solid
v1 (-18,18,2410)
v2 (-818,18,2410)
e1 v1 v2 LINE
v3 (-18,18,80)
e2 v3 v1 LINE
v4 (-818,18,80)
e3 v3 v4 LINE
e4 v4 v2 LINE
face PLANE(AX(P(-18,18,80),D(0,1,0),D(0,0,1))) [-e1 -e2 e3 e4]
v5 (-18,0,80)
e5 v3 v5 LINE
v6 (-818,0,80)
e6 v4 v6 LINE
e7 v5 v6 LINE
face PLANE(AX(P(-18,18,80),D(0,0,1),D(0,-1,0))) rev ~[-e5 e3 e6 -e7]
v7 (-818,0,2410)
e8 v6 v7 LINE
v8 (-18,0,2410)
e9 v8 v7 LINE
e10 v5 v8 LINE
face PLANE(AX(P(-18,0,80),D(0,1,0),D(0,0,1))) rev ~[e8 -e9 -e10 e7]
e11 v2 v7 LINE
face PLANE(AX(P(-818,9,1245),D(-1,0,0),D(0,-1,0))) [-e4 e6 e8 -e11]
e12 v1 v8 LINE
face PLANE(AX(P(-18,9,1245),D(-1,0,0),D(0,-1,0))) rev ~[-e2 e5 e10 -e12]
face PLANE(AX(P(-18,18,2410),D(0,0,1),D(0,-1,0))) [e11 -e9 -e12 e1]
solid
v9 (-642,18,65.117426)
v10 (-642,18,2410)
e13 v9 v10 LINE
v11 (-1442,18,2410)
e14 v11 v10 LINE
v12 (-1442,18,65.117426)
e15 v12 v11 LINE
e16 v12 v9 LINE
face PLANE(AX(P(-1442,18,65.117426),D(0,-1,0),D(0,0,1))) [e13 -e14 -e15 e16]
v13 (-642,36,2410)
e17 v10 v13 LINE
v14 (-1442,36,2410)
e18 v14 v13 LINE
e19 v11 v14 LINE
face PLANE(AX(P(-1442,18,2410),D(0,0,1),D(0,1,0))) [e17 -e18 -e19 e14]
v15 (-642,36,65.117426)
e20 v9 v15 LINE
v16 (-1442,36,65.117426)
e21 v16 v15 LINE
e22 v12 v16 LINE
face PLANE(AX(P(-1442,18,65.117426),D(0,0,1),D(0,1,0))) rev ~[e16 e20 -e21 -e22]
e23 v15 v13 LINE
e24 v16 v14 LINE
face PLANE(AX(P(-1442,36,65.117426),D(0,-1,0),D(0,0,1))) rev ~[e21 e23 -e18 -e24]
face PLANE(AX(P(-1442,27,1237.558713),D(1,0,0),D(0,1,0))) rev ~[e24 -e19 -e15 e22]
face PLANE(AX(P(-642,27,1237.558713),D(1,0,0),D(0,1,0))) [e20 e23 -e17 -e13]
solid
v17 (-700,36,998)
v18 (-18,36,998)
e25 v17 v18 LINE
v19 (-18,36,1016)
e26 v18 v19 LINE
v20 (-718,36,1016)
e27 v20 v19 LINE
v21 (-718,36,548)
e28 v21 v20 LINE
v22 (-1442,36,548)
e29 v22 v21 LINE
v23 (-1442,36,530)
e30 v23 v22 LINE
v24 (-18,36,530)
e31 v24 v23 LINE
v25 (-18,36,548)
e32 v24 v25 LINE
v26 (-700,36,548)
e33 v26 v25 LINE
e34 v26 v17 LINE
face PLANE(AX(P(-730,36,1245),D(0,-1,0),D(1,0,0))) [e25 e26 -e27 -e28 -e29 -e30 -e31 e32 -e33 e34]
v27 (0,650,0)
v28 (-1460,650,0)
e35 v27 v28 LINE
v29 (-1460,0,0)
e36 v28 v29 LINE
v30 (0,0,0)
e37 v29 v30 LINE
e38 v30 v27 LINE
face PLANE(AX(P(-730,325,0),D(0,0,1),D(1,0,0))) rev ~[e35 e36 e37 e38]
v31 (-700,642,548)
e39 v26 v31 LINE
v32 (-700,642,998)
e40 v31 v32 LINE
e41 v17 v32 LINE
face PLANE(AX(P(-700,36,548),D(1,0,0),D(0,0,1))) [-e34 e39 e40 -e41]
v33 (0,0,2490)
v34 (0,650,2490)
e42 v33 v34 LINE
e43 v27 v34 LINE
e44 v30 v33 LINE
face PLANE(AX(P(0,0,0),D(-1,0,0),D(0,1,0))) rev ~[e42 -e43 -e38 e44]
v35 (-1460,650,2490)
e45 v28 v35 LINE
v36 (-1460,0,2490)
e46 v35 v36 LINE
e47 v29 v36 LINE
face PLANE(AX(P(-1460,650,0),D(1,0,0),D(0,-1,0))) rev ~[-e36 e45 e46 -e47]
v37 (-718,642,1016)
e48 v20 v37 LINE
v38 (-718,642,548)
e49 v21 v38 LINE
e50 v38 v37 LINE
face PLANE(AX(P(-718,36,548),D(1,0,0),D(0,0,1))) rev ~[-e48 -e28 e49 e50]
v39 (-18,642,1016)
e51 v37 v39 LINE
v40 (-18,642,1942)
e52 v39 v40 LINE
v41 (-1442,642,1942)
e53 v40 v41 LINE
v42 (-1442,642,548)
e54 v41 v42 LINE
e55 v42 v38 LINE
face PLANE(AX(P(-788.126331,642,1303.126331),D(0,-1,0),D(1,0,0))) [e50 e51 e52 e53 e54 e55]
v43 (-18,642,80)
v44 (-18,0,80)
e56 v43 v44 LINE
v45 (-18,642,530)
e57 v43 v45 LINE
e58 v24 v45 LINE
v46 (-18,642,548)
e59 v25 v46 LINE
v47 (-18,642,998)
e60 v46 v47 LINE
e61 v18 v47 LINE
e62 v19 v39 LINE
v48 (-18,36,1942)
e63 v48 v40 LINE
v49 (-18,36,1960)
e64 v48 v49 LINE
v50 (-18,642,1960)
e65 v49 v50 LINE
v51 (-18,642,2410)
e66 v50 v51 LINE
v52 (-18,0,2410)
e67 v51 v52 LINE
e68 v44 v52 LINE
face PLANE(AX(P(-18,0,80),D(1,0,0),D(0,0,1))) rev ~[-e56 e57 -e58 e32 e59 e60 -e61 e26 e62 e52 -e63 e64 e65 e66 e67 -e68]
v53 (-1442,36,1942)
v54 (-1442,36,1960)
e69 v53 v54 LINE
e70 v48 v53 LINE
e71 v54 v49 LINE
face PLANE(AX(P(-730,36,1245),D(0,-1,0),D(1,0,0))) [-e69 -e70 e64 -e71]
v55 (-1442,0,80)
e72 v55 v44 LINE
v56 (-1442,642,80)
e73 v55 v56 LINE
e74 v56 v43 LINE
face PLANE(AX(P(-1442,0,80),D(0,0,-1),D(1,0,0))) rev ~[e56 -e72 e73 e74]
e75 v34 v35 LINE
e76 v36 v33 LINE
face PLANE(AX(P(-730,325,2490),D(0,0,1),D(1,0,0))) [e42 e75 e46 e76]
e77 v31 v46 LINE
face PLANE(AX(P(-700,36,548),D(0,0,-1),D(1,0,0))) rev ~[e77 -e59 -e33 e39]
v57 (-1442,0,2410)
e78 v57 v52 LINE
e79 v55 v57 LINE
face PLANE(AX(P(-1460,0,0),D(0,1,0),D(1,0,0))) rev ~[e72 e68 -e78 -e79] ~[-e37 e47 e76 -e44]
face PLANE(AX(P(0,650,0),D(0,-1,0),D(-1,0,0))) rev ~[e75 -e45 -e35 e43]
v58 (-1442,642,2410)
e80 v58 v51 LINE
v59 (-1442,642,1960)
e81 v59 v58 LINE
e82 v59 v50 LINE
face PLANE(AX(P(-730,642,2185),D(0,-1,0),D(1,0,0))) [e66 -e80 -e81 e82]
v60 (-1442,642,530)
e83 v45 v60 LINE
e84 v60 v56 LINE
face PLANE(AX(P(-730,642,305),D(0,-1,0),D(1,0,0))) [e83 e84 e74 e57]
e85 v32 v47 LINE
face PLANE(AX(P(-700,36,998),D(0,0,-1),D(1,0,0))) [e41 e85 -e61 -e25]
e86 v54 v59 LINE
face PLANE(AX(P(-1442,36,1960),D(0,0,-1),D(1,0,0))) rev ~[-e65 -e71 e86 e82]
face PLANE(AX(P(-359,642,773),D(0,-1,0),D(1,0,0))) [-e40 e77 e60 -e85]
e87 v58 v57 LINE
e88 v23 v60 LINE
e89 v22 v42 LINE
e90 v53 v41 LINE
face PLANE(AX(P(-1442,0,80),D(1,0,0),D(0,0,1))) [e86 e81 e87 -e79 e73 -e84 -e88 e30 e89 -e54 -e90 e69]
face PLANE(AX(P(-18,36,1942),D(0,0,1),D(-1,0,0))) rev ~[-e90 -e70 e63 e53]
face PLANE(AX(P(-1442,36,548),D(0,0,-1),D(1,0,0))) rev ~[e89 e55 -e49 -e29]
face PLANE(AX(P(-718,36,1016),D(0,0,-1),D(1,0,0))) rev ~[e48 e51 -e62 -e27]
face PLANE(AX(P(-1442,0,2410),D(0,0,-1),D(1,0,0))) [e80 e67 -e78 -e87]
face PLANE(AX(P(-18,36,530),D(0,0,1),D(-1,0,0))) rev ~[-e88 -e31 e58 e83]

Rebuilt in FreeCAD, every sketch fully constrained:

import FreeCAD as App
import Part
import Sketcher
from FreeCAD import Vector

doc = App.newDocument("Part")
params = doc.addObject("Spreadsheet::Sheet", "Params")
for row, (alias, value) in enumerate([
    ("sketch1_width", "1460 mm"),
    ("sketch1_height", "650 mm"),
    ("pad1_length", "2490 mm"),
    ("sketch2_width", "1424 mm"),
    ("sketch2_height", "2330 mm"),
    ("pocket1_length", "36 mm"),
    ("sketch3_width", "1424 mm"),
    ("sketch3_width2", "682 mm"),
    ("sketch3_width3", "724 mm"),
    ("sketch3_height", "450 mm"),
    ("sketch3_height2", "1394 mm"),
    ("pocket2_length", "606 mm"),
    ("sketch4_width", "18 mm"),
    ("sketch4_height", "2330 mm"),
    ("pad2_length", "800 mm"),
    ("sketch5_width", "18 mm"),
    ("pad3_length", "800 mm"),
], start=1):
    params.set(f"A{row}", alias)
    params.set(f"B{row}", "=" + value)
    params.setAlias(f"B{row}", alias)

body = doc.addObject("PartDesign::Body", "Body")

sketch1 = body.newObject("Sketcher::SketchObject", "Sketch")
sketch1.AttachmentSupport = (doc.getObject("XY_Plane"), [""])
sketch1.MapMode = "FlatFace"
sketch1.addGeometry([
    Part.LineSegment(Vector(-1460, 0, 0), Vector(0, 0, 0)),
    Part.LineSegment(Vector(0, 0, 0), Vector(0, 650, 0)),
    Part.LineSegment(Vector(0, 650, 0), Vector(-1460, 650, 0)),
    Part.LineSegment(Vector(-1460, 650, 0), Vector(-1460, 0, 0)),
], False)
sketch1.addConstraint([
    Sketcher.Constraint("Coincident", 0, 2, 1, 1),
    Sketcher.Constraint("Coincident", 1, 2, 2, 1),
    Sketcher.Constraint("Coincident", 2, 2, 3, 1),
    Sketcher.Constraint("Coincident", 3, 2, 0, 1),
    Sketcher.Constraint("Horizontal", 0),
    Sketcher.Constraint("Vertical", 1),
    Sketcher.Constraint("Horizontal", 2),
    Sketcher.Constraint("Vertical", 3),
    Sketcher.Constraint("Coincident", 0, 2, -1, 1),
    Sketcher.Constraint("DistanceX", 0, 1, 0, 2, 1460.0),
    Sketcher.Constraint("DistanceY", 1, 1, 1, 2, 650.0),
])
sketch1.setExpression("Constraints[9]", "Params.sketch1_width")
sketch1.setExpression("Constraints[10]", "Params.sketch1_height")
pad1 = body.newObject("PartDesign::Pad", "Pad")
pad1.Profile = sketch1
pad1.setExpression("Length", "Params.pad1_length")

sketch2 = body.newObject("Sketcher::SketchObject", "Sketch001")
sketch2.AttachmentSupport = (doc.getObject("XZ_Plane"), [""])
sketch2.MapMode = "FlatFace"
sketch2.addGeometry([
    Part.LineSegment(Vector(-1442, 2410, 0), Vector(-1442, 80, 0)),
    Part.LineSegment(Vector(-1442, 80, 0), Vector(-18, 80, 0)),
    Part.LineSegment(Vector(-18, 80, 0), Vector(-18, 2410, 0)),
    Part.LineSegment(Vector(-18, 2410, 0), Vector(-1442, 2410, 0)),
], False)
sketch2.addConstraint([
    Sketcher.Constraint("Coincident", 0, 2, 1, 1),
    Sketcher.Constraint("Coincident", 1, 2, 2, 1),
    Sketcher.Constraint("Coincident", 2, 2, 3, 1),
    Sketcher.Constraint("Coincident", 3, 2, 0, 1),
    Sketcher.Constraint("Vertical", 0),
    Sketcher.Constraint("Horizontal", 1),
    Sketcher.Constraint("Vertical", 2),
    Sketcher.Constraint("Horizontal", 3),
    Sketcher.Constraint("DistanceX", 1, 1, 1, 2, 1424.0),
    Sketcher.Constraint("DistanceY", 0, 2, 0, 1, 2330.0),
    Sketcher.Constraint("DistanceX", 0, 2, -1, 1, 1442.0),
    Sketcher.Constraint("DistanceY", -1, 1, 0, 2, 80.0),
])
sketch2.setExpression("Constraints[8]", "Params.sketch2_width")
sketch2.setExpression("Constraints[9]", "Params.sketch2_height")
pocket1 = body.newObject("PartDesign::Pocket", "Pocket")
pocket1.Profile = sketch2
pocket1.setExpression("Length", "Params.pocket1_length")

sketch3 = body.newObject("Sketcher::SketchObject", "Sketch002")
sketch3.AttachmentSupport = (doc.getObject("XZ_Plane"), [""])
sketch3.MapMode = "FlatFace"
sketch3.AttachmentOffset = App.Placement(Vector(0, 0, -36), App.Rotation())
sketch3.addGeometry([
    Part.LineSegment(Vector(-1442, 2410, 0), Vector(-1442, 1960, 0)),
    Part.LineSegment(Vector(-1442, 1960, 0), Vector(-18, 1960, 0)),
    Part.LineSegment(Vector(-18, 1960, 0), Vector(-18, 2410, 0)),
    Part.LineSegment(Vector(-18, 2410, 0), Vector(-1442, 2410, 0)),
    Part.LineSegment(Vector(-700, 998, 0), Vector(-700, 548, 0)),
    Part.LineSegment(Vector(-700, 548, 0), Vector(-18, 548, 0)),
    Part.LineSegment(Vector(-18, 548, 0), Vector(-18, 998, 0)),
    Part.LineSegment(Vector(-18, 998, 0), Vector(-700, 998, 0)),
    Part.LineSegment(Vector(-18, 1942, 0), Vector(-1442, 1942, 0)),
    Part.LineSegment(Vector(-1442, 1942, 0), Vector(-1442, 548, 0)),
    Part.LineSegment(Vector(-1442, 548, 0), Vector(-718, 548, 0)),
    Part.LineSegment(Vector(-718, 548, 0), Vector(-718, 1016, 0)),
    Part.LineSegment(Vector(-718, 1016, 0), Vector(-18, 1016, 0)),
    Part.LineSegment(Vector(-18, 1016, 0), Vector(-18, 1942, 0)),
    Part.LineSegment(Vector(-18, 530, 0), Vector(-1442, 530, 0)),
    Part.LineSegment(Vector(-1442, 530, 0), Vector(-1442, 80, 0)),
    Part.LineSegment(Vector(-1442, 80, 0), Vector(-18, 80, 0)),
    Part.LineSegment(Vector(-18, 80, 0), Vector(-18, 530, 0)),
], False)
sketch3.addConstraint([
    Sketcher.Constraint("Coincident", 0, 2, 1, 1),
    Sketcher.Constraint("Coincident", 1, 2, 2, 1),
    Sketcher.Constraint("Coincident", 2, 2, 3, 1),
    Sketcher.Constraint("Coincident", 3, 2, 0, 1),
    Sketcher.Constraint("Coincident", 4, 2, 5, 1),
    Sketcher.Constraint("Coincident", 5, 2, 6, 1),
    Sketcher.Constraint("Coincident", 6, 2, 7, 1),
    Sketcher.Constraint("Coincident", 7, 2, 4, 1),
    Sketcher.Constraint("Coincident", 8, 2, 9, 1),
    Sketcher.Constraint("Coincident", 9, 2, 10, 1),
    Sketcher.Constraint("Coincident", 10, 2, 11, 1),
    Sketcher.Constraint("Coincident", 11, 2, 12, 1),
    Sketcher.Constraint("Coincident", 12, 2, 13, 1),
    Sketcher.Constraint("Coincident", 13, 2, 8, 1),
    Sketcher.Constraint("Coincident", 14, 2, 15, 1),
    Sketcher.Constraint("Coincident", 15, 2, 16, 1),
    Sketcher.Constraint("Coincident", 16, 2, 17, 1),
    Sketcher.Constraint("Coincident", 17, 2, 14, 1),
    Sketcher.Constraint("Vertical", 0),
    Sketcher.Constraint("Horizontal", 1),
    Sketcher.Constraint("Vertical", 2),
    Sketcher.Constraint("Horizontal", 3),
    Sketcher.Constraint("Vertical", 4),
    Sketcher.Constraint("Horizontal", 5),
    Sketcher.Constraint("Vertical", 6),
    Sketcher.Constraint("Horizontal", 7),
    Sketcher.Constraint("Horizontal", 8),
    Sketcher.Constraint("Vertical", 9),
    Sketcher.Constraint("Horizontal", 10),
    Sketcher.Constraint("Vertical", 11),
    Sketcher.Constraint("Horizontal", 12),
    Sketcher.Constraint("Vertical", 13),
    Sketcher.Constraint("Horizontal", 14),
    Sketcher.Constraint("Vertical", 15),
    Sketcher.Constraint("Horizontal", 16),
    Sketcher.Constraint("Vertical", 17),
    Sketcher.Constraint("Horizontal", 5, 2, 9, 2),
    Sketcher.Constraint("Vertical", 2, 2, 5, 2),
    Sketcher.Constraint("Vertical", 3, 2, 8, 2),
    Sketcher.Constraint("Vertical", 6, 2, 12, 2),
    Sketcher.Constraint("Vertical", 9, 2, 14, 2),
    Sketcher.Constraint("Vertical", 13, 2, 16, 2),
    Sketcher.Constraint("Equal", 2, 4),
    Sketcher.Constraint("Equal", 6, 15),
    Sketcher.Constraint("DistanceX", 1, 1, 1, 2, 1424.0),
    Sketcher.Constraint("DistanceX", 5, 1, 5, 2, 682.0),
    Sketcher.Constraint("DistanceX", 10, 1, 10, 2, 724.0),
    Sketcher.Constraint("DistanceY", 0, 2, 0, 1, 450.0),
    Sketcher.Constraint("DistanceY", 9, 2, 9, 1, 1394.0),
    Sketcher.Constraint("DistanceY", 11, 1, 11, 2, 468.0),
    Sketcher.Constraint("DistanceX", 0, 2, -1, 1, 1442.0),
    Sketcher.Constraint("DistanceY", -1, 1, 0, 2, 1960.0),
    Sketcher.Constraint("DistanceY", -1, 1, 4, 2, 548.0),
    Sketcher.Constraint("DistanceY", -1, 1, 14, 2, 530.0),
])
sketch3.setExpression("Constraints[44]", "Params.sketch3_width")
sketch3.setExpression("Constraints[45]", "Params.sketch3_width2")
sketch3.setExpression("Constraints[46]", "Params.sketch3_width3")
sketch3.setExpression("Constraints[47]", "Params.sketch3_height")
sketch3.setExpression("Constraints[48]", "Params.sketch3_height2")
pocket2 = body.newObject("PartDesign::Pocket", "Pocket001")
pocket2.Profile = sketch3
pocket2.setExpression("Length", "Params.pocket2_length")
body2 = doc.addObject("PartDesign::Body", "Body001")

sketch4 = body2.newObject("Sketcher::SketchObject", "Sketch003")
sketch4.AttachmentSupport = (doc.getObject("YZ_Plane001"), [""])
sketch4.MapMode = "FlatFace"
sketch4.AttachmentOffset = App.Placement(Vector(0, 0, -18), App.Rotation())
sketch4.addGeometry([
    Part.LineSegment(Vector(18, 2410, 0), Vector(18, 80, 0)),
    Part.LineSegment(Vector(18, 80, 0), Vector(0, 80, 0)),
    Part.LineSegment(Vector(0, 80, 0), Vector(0, 2410, 0)),
    Part.LineSegment(Vector(0, 2410, 0), Vector(18, 2410, 0)),
], False)
sketch4.addConstraint([
    Sketcher.Constraint("Coincident", 0, 2, 1, 1),
    Sketcher.Constraint("Coincident", 1, 2, 2, 1),
    Sketcher.Constraint("Coincident", 2, 2, 3, 1),
    Sketcher.Constraint("Coincident", 3, 2, 0, 1),
    Sketcher.Constraint("Vertical", 0),
    Sketcher.Constraint("Horizontal", 1),
    Sketcher.Constraint("Vertical", 2),
    Sketcher.Constraint("Horizontal", 3),
    Sketcher.Constraint("PointOnObject", 1, 2, -2),
    Sketcher.Constraint("DistanceX", 1, 2, 1, 1, 18.0),
    Sketcher.Constraint("DistanceY", 0, 2, 0, 1, 2330.0),
    Sketcher.Constraint("DistanceY", -1, 1, 0, 2, 80.0),
])
sketch4.setExpression("Constraints[9]", "Params.sketch4_width")
sketch4.setExpression("Constraints[10]", "Params.sketch4_height")
pad2 = body2.newObject("PartDesign::Pad", "Pad001")
pad2.Profile = sketch4
pad2.setExpression("Length", "Params.pad2_length")
pad2.Reversed = True
body3 = doc.addObject("PartDesign::Body", "Body002")

sketch5 = body3.newObject("Sketcher::SketchObject", "Sketch004")
sketch5.AttachmentSupport = (doc.getObject("YZ_Plane002"), [""])
sketch5.MapMode = "FlatFace"
sketch5.AttachmentOffset = App.Placement(Vector(0, 0, -1442), App.Rotation())
sketch5.addGeometry([
    Part.LineSegment(Vector(18, 2410, 0), Vector(18, 65, 0)),
    Part.LineSegment(Vector(18, 65, 0), Vector(36, 65, 0)),
    Part.LineSegment(Vector(36, 65, 0), Vector(36, 2410, 0)),
    Part.LineSegment(Vector(36, 2410, 0), Vector(18, 2410, 0)),
], False)
sketch5.addConstraint([
    Sketcher.Constraint("Coincident", 0, 2, 1, 1),
    Sketcher.Constraint("Coincident", 1, 2, 2, 1),
    Sketcher.Constraint("Coincident", 2, 2, 3, 1),
    Sketcher.Constraint("Coincident", 3, 2, 0, 1),
    Sketcher.Constraint("Vertical", 0),
    Sketcher.Constraint("Horizontal", 1),
    Sketcher.Constraint("Vertical", 2),
    Sketcher.Constraint("Horizontal", 3),
    Sketcher.Constraint("DistanceX", 1, 1, 1, 2, 18.0),
    Sketcher.Constraint("DistanceX", -1, 1, 0, 2, 18.0),
    Sketcher.Constraint("DistanceY", -1, 1, 2, 2, 2410.0),
    Sketcher.Constraint("DistanceY", 0, 2, 0, 1, 2344.882574),
])
sketch5.setExpression("Constraints[8]", "Params.sketch5_width")
pad3 = body3.newObject("PartDesign::Pad", "Pad002")
pad3.Profile = sketch5
pad3.setExpression("Length", "Params.pad3_length")

doc.recompute()
